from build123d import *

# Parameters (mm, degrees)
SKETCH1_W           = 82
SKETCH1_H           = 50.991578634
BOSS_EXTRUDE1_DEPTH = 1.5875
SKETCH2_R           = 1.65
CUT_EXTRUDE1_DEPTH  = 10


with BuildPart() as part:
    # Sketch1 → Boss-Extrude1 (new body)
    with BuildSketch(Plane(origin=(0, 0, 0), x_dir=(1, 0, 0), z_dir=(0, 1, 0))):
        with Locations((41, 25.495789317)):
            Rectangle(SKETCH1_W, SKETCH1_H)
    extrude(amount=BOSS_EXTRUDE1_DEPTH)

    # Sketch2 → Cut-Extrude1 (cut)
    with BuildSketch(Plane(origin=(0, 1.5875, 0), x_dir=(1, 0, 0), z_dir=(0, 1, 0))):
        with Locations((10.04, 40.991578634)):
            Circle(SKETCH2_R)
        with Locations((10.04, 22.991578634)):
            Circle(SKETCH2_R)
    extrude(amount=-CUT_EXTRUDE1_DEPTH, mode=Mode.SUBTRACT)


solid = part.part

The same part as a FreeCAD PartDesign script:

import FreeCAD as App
import Part
import Sketcher


def add_polygon(sketch, points):
    """Adds a closed chain of lines whose ends are joined by coincident constraints."""
    first, n = sketch.GeometryCount, len(points)
    for a, b in zip(points, points[1:] + points[:1]):
        sketch.addGeometry(Part.LineSegment(App.Vector(*a, 0), App.Vector(*b, 0)), False)
    for i in range(n):
        sketch.addConstraint(Sketcher.Constraint("Coincident", first + i, 2, first + (i + 1) % n, 1))

doc = App.newDocument("Part")
params = doc.addObject("Spreadsheet::Sheet", "Params")
for row, (alias, value) in enumerate([
    ("sketch1_width", "82 mm"),
    ("pad1_length", "1.5875 mm"),
    ("sketch2_diameter", "3.3 mm"),
    ("pocket1_length", "10 mm"),
], start=1):
    params.set(f"A{row}", alias)
    params.set(f"B{row}", "=" + value)
    params.setAlias(f"B{row}", alias)

body = doc.addObject("PartDesign::Body", "Body")

# Sketch on XZ plane
sketch1 = body.newObject("Sketcher::SketchObject", "Sketch")
sketch1.AttachmentSupport = (doc.getObject("XZ_Plane"), [""])
sketch1.MapMode = "FlatFace"
add_polygon(sketch1, [(0, -50.991579), (0, 0), (82, 0), (82, -50.991579)])  # lines 0-3
sketch1.addConstraint(Sketcher.Constraint("Vertical", 0))
sketch1.addConstraint(Sketcher.Constraint("Horizontal", 1))
sketch1.addConstraint(Sketcher.Constraint("Vertical", 2))
sketch1.addConstraint(Sketcher.Constraint("Horizontal", 3))
sketch1.addConstraint(Sketcher.Constraint("Coincident", 0, 2, -1, 1))
sketch1.addConstraint(Sketcher.Constraint("DistanceX", 1, 1, 1, 2, 82.0))
sketch1.addConstraint(Sketcher.Constraint("DistanceY", 0, 1, 0, 2, 50.991579))
sketch1.setExpression("Constraints[9]", "Params.sketch1_width")
pad1 = body.newObject("PartDesign::Pad", "Pad")
pad1.Profile = sketch1
pad1.setExpression("Length", "Params.pad1_length")
pad1.Reversed = True

# Sketch on XZ plane
sketch2 = body.newObject("Sketcher::SketchObject", "Sketch001")
sketch2.AttachmentSupport = (doc.getObject("XZ_Plane"), [""])
sketch2.MapMode = "FlatFace"
sketch2.AttachmentOffset = App.Placement(App.Vector(0, 0, -1.5875), App.Rotation())
sketch2.addGeometry(Part.Circle(App.Vector(10.04, -40.991579, 0), App.Vector(0, 0, 1), 1.65), False)
sketch2.addGeometry(Part.Circle(App.Vector(10.04, -22.991579, 0), App.Vector(0, 0, 1), 1.65), False)
sketch2.addConstraint(Sketcher.Constraint("Equal", 0, 1))
sketch2.addConstraint(Sketcher.Constraint("Vertical", 0, 3, 1, 3))
sketch2.addConstraint(Sketcher.Constraint("Diameter", 0, 3.3))
sketch2.addConstraint(Sketcher.Constraint("DistanceY", 0, 3, 1, 3, 18.0))
sketch2.addConstraint(Sketcher.Constraint("DistanceX", -1, 1, 0, 3, 10.04))
sketch2.addConstraint(Sketcher.Constraint("DistanceY", 0, 3, -1, 1, 40.991579))
sketch2.setExpression("Constraints[2]", "Params.sketch2_diameter")
pocket1 = body.newObject("PartDesign::Pocket", "Pocket")
pocket1.Profile = sketch2
pocket1.setExpression("Length", "Params.pocket1_length")
pocket1.Reversed = True

doc.recompute()
